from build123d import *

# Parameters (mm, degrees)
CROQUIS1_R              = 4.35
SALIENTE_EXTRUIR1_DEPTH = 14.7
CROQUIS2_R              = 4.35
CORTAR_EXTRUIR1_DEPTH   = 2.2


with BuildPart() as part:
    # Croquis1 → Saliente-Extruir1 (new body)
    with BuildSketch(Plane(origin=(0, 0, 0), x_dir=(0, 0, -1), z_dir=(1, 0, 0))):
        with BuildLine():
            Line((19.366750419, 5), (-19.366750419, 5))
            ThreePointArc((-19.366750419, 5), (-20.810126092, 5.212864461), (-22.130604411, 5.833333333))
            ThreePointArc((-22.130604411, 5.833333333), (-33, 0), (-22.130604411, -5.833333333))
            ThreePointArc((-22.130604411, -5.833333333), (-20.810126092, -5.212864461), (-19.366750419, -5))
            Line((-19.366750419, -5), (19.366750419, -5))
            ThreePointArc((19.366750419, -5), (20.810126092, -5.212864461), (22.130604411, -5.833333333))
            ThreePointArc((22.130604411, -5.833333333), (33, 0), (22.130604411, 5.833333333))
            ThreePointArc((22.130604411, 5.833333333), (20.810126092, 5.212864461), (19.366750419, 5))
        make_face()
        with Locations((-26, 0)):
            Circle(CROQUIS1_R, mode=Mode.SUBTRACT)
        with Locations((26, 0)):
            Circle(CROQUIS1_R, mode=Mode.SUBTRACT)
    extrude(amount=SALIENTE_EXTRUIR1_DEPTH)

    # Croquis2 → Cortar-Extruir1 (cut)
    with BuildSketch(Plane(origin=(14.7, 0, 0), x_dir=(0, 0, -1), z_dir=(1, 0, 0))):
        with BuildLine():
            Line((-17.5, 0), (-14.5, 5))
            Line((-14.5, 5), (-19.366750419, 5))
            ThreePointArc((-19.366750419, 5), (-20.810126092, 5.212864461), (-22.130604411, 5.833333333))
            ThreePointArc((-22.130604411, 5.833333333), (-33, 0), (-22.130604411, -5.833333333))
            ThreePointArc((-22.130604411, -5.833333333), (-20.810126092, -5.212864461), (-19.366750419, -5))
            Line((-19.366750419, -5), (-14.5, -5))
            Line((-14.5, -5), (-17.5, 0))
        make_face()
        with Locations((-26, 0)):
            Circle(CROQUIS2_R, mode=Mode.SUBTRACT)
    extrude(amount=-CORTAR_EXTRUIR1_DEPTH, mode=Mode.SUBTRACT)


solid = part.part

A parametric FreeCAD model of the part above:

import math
import FreeCAD as App
import Part
import Sketcher
from FreeCAD import Vector
Q = App.Units.Quantity

doc = App.newDocument("Part")
body = doc.addObject("PartDesign::Body", "Body")

# Sketch on YZ plane
sketch1 = body.newObject("Sketcher::SketchObject", "Sketch")
sketch1.AttachmentSupport = (doc.getObject("YZ_Plane"), [""])
sketch1.MapMode = "FlatFace"
sketch1.addGeometry([
    Part.LineSegment(Vector(5, -19.36675, 0), Vector(5, 19.36675, 0)),  # 0
    Part.ArcOfCircle(Part.Circle(Vector(10, 19.36675, 0), Vector(0, 0, 1), 5), math.radians(146.44269), math.radians(180)),  # 1
    Part.ArcOfCircle(Part.Circle(Vector(0, 26, 0), Vector(0, 0, 1), 7), math.radians(-33.55731), math.radians(213.55731)),  # 2
    Part.ArcOfCircle(Part.Circle(Vector(-10, 19.36675, 0), Vector(0, 0, 1), 5), math.radians(0), math.radians(33.55731)),  # 3
    Part.LineSegment(Vector(-5, 19.36675, 0), Vector(-5, -19.36675, 0)),  # 4
    Part.ArcOfCircle(Part.Circle(Vector(-10, -19.36675, 0), Vector(0, 0, 1), 5), math.radians(-33.55731), math.radians(0)),  # 5
    Part.ArcOfCircle(Part.Circle(Vector(0, -26, 0), Vector(0, 0, 1), 7), math.radians(146.44269), math.radians(393.55731)),  # 6
    Part.ArcOfCircle(Part.Circle(Vector(10, -19.36675, 0), Vector(0, 0, 1), 5), math.radians(180), math.radians(213.55731)),  # 7
    Part.Circle(Vector(0, 26, 0), Vector(0, 0, 1), 4.35),  # 8
    Part.Circle(Vector(0, -26, 0), Vector(0, 0, 1), 4.35),  # 9
], False)
sketch1.addConstraint([
    Sketcher.Constraint("Tangent", 0, 2, 1, 2),
    Sketcher.Constraint("Tangent", 1, 1, 2, 1),
    Sketcher.Constraint("Tangent", 2, 2, 3, 2),
    Sketcher.Constraint("Tangent", 3, 1, 4, 1),
    Sketcher.Constraint("Tangent", 4, 2, 5, 2),
    Sketcher.Constraint("Tangent", 5, 1, 6, 1),
    Sketcher.Constraint("Tangent", 6, 2, 7, 2),
    Sketcher.Constraint("Tangent", 7, 1, 0, 1),
    Sketcher.Constraint("Vertical", 0),
    Sketcher.Constraint("Vertical", 4),
    Sketcher.Constraint("Coincident", 8, 3, 2, 3),
    Sketcher.Constraint("Coincident", 9, 3, 6, 3),
    Sketcher.Constraint("Equal", 1, 3),
    Sketcher.Constraint("Equal", 3, 5),
    Sketcher.Constraint("Equal", 2, 6),
    Sketcher.Constraint("Equal", 5, 7),
    Sketcher.Constraint("Equal", 8, 9),
    Sketcher.Constraint("Symmetric", 1, 3, 5, 3, -1, 1),
    Sketcher.Constraint("Symmetric", 2, 3, 6, 3, -1),
    Sketcher.Constraint("Radius", 1, Q("5 mm")),
    Sketcher.Constraint("Radius", 2, Q("7 mm")),
    Sketcher.Constraint("Diameter", 8, Q("8.7 mm")),
    Sketcher.Constraint("DistanceX", -1, 1, 1, 3, Q("10 mm")),
    Sketcher.Constraint("DistanceY", -1, 1, 2, 3, Q("26 mm")),
])
pad1 = body.newObject("PartDesign::Pad", "Pad")
pad1.Profile = sketch1
pad1.Length = 14.7

# Sketch on YZ plane
sketch2 = body.newObject("Sketcher::SketchObject", "Sketch001")
sketch2.AttachmentSupport = (doc.getObject("YZ_Plane"), [""])
sketch2.MapMode = "FlatFace"
sketch2.AttachmentOffset = App.Placement(Vector(0, 0, 14.7), App.Rotation())
sketch2.addGeometry([
    Part.LineSegment(Vector(0, 17.5, 0), Vector(5, 14.5, 0)),  # 0
    Part.LineSegment(Vector(5, 14.5, 0), Vector(5, 19.36675, 0)),  # 1
    Part.ArcOfCircle(Part.Circle(Vector(10, 19.36675, 0), Vector(0, 0, 1), 5), math.radians(146.44269), math.radians(180)),  # 2
    Part.ArcOfCircle(Part.Circle(Vector(0, 26, 0), Vector(0, 0, 1), 7), math.radians(-33.55731), math.radians(213.55731)),  # 3
    Part.ArcOfCircle(Part.Circle(Vector(-10, 19.36675, 0), Vector(0, 0, 1), 5), math.radians(0), math.radians(33.55731)),  # 4
    Part.LineSegment(Vector(-5, 19.36675, 0), Vector(-5, 14.5, 0)),  # 5
    Part.LineSegment(Vector(-5, 14.5, 0), Vector(0, 17.5, 0)),  # 6
    Part.Circle(Vector(0, 26, 0), Vector(0, 0, 1), 4.35),  # 7
], False)
sketch2.addConstraint([
    Sketcher.Constraint("Coincident", 0, 2, 1, 1),
    Sketcher.Constraint("Tangent", 1, 2, 2, 2),
    Sketcher.Constraint("Tangent", 2, 1, 3, 1),
    Sketcher.Constraint("Tangent", 3, 2, 4, 2),
    Sketcher.Constraint("Tangent", 4, 1, 5, 1),
    Sketcher.Constraint("Coincident", 5, 2, 6, 1),
    Sketcher.Constraint("Coincident", 6, 2, 0, 1),
    Sketcher.Constraint("Vertical", 1),
    Sketcher.Constraint("Vertical", 5),
    Sketcher.Constraint("Coincident", 7, 3, 3, 3),
    Sketcher.Constraint("Equal", 2, 4),
    Sketcher.Constraint("Symmetric", 2, 3, 4, 3, -2),
    Sketcher.Constraint("PointOnObject", 6, 2, -2),
    Sketcher.Constraint("Horizontal", 0, 2, 5, 2),
    Sketcher.Constraint("Radius", 2, Q("5 mm")),
    Sketcher.Constraint("Radius", 3, Q("7 mm")),
    Sketcher.Constraint("Diameter", 7, Q("8.7 mm")),
    Sketcher.Constraint("DistanceX", -1, 1, 2, 3, Q("10 mm")),
    Sketcher.Constraint("DistanceY", -1, 1, 3, 3, Q("26 mm")),
    Sketcher.Constraint("DistanceY", 0, 2, 6, 2, Q("3 mm")),
    Sketcher.Constraint("DistanceY", -1, 1, 0, 2, Q("14.5 mm")),
])
pocket1 = body.newObject("PartDesign::Pocket", "Pocket")
pocket1.Profile = sketch2
pocket1.Length = 2.2

doc.recompute()
